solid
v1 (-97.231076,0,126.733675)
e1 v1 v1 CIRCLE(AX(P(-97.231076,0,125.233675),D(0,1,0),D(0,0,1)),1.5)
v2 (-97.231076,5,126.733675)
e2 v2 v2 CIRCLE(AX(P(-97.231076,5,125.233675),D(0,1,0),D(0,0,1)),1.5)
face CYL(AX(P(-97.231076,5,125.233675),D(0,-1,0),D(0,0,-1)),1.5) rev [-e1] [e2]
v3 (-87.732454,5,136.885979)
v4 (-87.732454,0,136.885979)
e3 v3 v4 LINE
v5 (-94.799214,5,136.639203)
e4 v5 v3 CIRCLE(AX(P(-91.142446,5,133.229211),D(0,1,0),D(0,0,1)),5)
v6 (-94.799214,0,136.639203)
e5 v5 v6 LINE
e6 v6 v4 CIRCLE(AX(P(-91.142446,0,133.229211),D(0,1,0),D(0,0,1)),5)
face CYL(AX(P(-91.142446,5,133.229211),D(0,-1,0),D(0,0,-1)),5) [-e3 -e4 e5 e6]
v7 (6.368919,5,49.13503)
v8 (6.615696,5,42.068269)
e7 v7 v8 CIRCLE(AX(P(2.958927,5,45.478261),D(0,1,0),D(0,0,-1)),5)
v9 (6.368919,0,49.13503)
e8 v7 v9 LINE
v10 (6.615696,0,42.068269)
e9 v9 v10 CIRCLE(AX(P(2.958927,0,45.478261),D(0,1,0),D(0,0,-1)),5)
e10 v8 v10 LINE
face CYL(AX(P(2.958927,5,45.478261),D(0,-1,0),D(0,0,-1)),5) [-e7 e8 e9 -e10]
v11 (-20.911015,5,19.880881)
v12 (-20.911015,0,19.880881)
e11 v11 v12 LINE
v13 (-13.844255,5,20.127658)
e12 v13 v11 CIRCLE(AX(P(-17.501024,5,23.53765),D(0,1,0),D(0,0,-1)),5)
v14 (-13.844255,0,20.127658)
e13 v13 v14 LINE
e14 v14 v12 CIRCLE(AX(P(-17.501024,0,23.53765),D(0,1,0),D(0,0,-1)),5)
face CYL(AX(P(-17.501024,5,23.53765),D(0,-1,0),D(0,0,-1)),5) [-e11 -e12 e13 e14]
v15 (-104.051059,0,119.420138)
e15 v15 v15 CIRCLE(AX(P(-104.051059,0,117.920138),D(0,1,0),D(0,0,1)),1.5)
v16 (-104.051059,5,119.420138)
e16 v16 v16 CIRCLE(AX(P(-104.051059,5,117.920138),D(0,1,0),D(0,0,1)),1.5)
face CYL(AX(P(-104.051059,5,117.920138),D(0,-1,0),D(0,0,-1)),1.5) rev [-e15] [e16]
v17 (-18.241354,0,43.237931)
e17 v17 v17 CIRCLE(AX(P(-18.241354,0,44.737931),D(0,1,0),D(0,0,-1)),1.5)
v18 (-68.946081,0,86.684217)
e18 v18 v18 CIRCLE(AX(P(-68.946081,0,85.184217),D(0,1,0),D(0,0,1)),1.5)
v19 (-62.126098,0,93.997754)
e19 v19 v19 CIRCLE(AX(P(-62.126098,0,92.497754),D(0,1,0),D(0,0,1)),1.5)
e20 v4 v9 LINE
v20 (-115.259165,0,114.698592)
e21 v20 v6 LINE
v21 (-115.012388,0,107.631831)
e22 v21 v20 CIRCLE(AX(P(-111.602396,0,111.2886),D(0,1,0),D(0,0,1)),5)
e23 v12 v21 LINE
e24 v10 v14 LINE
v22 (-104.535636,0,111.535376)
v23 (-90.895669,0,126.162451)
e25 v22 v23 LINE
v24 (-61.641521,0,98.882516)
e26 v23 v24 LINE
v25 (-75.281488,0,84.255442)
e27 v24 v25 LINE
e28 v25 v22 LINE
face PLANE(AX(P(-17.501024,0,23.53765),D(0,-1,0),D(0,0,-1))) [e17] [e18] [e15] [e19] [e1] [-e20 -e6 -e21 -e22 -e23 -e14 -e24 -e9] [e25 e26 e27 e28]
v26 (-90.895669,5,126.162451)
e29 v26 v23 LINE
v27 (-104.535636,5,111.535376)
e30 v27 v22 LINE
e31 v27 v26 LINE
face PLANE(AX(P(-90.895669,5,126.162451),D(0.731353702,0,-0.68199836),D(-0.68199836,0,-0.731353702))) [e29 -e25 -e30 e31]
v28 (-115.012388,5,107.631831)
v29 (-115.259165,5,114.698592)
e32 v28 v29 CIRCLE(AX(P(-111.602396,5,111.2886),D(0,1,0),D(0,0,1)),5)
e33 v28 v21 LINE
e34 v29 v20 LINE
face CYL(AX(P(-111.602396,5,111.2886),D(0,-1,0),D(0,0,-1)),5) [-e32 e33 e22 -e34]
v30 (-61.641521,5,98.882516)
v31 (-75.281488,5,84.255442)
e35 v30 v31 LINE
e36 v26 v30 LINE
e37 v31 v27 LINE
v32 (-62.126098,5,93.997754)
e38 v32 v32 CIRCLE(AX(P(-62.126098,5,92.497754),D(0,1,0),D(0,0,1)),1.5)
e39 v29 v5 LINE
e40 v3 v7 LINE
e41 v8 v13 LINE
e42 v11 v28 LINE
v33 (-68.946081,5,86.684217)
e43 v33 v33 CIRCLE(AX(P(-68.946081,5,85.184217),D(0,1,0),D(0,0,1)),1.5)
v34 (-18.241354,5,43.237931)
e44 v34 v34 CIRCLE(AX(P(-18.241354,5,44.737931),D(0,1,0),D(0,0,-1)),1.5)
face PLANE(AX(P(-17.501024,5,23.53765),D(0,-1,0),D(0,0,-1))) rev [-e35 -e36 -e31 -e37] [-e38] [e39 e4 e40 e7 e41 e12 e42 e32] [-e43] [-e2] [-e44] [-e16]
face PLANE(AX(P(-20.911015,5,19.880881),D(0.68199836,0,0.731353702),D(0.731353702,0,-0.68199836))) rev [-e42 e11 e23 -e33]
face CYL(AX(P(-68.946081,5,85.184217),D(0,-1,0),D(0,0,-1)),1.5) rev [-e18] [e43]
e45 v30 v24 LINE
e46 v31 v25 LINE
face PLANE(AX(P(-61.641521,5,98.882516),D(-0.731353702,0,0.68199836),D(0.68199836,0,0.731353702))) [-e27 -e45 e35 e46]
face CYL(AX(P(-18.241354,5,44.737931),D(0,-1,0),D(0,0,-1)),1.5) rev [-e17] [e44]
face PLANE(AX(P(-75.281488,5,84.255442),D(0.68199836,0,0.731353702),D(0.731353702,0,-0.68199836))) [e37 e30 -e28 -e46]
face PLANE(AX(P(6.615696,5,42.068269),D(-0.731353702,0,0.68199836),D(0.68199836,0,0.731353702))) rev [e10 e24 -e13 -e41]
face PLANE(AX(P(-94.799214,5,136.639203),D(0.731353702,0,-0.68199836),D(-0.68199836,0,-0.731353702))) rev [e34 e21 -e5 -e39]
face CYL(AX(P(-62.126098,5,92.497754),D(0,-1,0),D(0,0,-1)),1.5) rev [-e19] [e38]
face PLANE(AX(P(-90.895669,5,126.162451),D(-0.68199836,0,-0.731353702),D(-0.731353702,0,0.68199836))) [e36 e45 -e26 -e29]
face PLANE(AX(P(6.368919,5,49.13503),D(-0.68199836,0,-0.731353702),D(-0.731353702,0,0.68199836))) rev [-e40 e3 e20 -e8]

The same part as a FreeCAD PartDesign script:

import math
import FreeCAD as App
import Part
import Sketcher
from FreeCAD import Vector
Q = App.Units.Quantity

doc = App.newDocument("Part")
params = doc.addObject("Spreadsheet::Sheet", "Params")
for row, (alias, value) in enumerate([
    ("sketch1_diameter", "3 mm"),
    ("sketch1_radius", "5 mm"),
    ("sketch1_length", "30 mm"),
    ("sketch1_length2", "40 mm"),
    ("sketch1_length3", "20 mm"),
    ("pad1_length", "5 mm"),
], start=1):
    params.set(f"A{row}", alias)
    params.set(f"B{row}", "=" + value)
    params.setAlias(f"B{row}", alias)

body = doc.addObject("PartDesign::Body", "Body")

# Sketch on XZ plane
sketch1 = body.newObject("Sketcher::SketchObject", "Sketch")
sketch1.AttachmentSupport = (doc.getObject("XZ_Plane"), [""])
sketch1.MapMode = "FlatFace"
sketch1.addGeometry(Part.LineSegment(Vector(-20.9, 19.9, 0), Vector(-115, 107.6, 0)), False)
sketch1.addGeometry(Part.ArcOfCircle(Part.Circle(Vector(-111.6, 111.3, 0), Vector(0, 0, 1), 5), math.radians(137), math.radians(227)), False)
sketch1.addGeometry(Part.LineSegment(Vector(-115.3, 114.7, 0), Vector(-94.8, 136.6, 0)), False)
sketch1.addGeometry(Part.ArcOfCircle(Part.Circle(Vector(-91.1, 133.2, 0), Vector(0, 0, 1), 5), math.radians(47), math.radians(137)), False)
sketch1.addGeometry(Part.LineSegment(Vector(-87.7, 136.9, 0), Vector(6.4, 49.1, 0)), False)
sketch1.addGeometry(Part.ArcOfCircle(Part.Circle(Vector(3, 45.5, 0), Vector(0, 0, 1), 5), math.radians(-43), math.radians(47)), False)
sketch1.addGeometry(Part.LineSegment(Vector(6.6, 42.1, 0), Vector(-13.8, 20.1, 0)), False)
sketch1.addGeometry(Part.ArcOfCircle(Part.Circle(Vector(-17.5, 23.5, 0), Vector(0, 0, 1), 5), math.radians(-133), math.radians(-43)), False)
sketch1.addGeometry(Part.Circle(Vector(-97.2, 125.2, 0), Vector(0, 0, 1), 1.5), False)
sketch1.addGeometry(Part.Circle(Vector(-104.1, 117.9, 0), Vector(0, 0, 1), 1.5), False)
sketch1.addGeometry(Part.LineSegment(Vector(-61.6, 98.9, 0), Vector(-90.9, 126.2, 0)), False)
sketch1.addGeometry(Part.LineSegment(Vector(-90.9, 126.2, 0), Vector(-104.5, 111.5, 0)), False)
sketch1.addGeometry(Part.LineSegment(Vector(-104.5, 111.5, 0), Vector(-75.3, 84.3, 0)), False)
sketch1.addGeometry(Part.LineSegment(Vector(-75.3, 84.3, 0), Vector(-61.6, 98.9, 0)), False)
sketch1.addGeometry(Part.Circle(Vector(-62.1, 92.5, 0), Vector(0, 0, 1), 1.5), False)
sketch1.addGeometry(Part.Circle(Vector(-68.9, 85.2, 0), Vector(0, 0, 1), 1.5), False)
sketch1.addGeometry(Part.Circle(Vector(-18.2, 44.7, 0), Vector(0, 0, 1), 1.5), False)
sketch1.addConstraint(Sketcher.Constraint("Tangent", 0, 2, 1, 2))
sketch1.addConstraint(Sketcher.Constraint("Tangent", 1, 1, 2, 1))
sketch1.addConstraint(Sketcher.Constraint("Tangent", 2, 2, 3, 2))
sketch1.addConstraint(Sketcher.Constraint("Tangent", 3, 1, 4, 1))
sketch1.addConstraint(Sketcher.Constraint("Tangent", 4, 2, 5, 2))
sketch1.addConstraint(Sketcher.Constraint("Tangent", 5, 1, 6, 1))
sketch1.addConstraint(Sketcher.Constraint("Tangent", 6, 2, 7, 2))
sketch1.addConstraint(Sketcher.Constraint("Tangent", 7, 1, 0, 1))
sketch1.addConstraint(Sketcher.Constraint("Coincident", 10, 2, 11, 1))
sketch1.addConstraint(Sketcher.Constraint("Coincident", 11, 2, 12, 1))
sketch1.addConstraint(Sketcher.Constraint("Coincident", 12, 2, 13, 1))
sketch1.addConstraint(Sketcher.Constraint("Coincident", 13, 2, 10, 1))
sketch1.addConstraint(Sketcher.Constraint("Equal", 1, 3))
sketch1.addConstraint(Sketcher.Constraint("Equal", 3, 5))
sketch1.addConstraint(Sketcher.Constraint("Equal", 5, 7))
sketch1.addConstraint(Sketcher.Constraint("Equal", 8, 9))
sketch1.addConstraint(Sketcher.Constraint("Equal", 9, 14))
sketch1.addConstraint(Sketcher.Constraint("Equal", 14, 15))
sketch1.addConstraint(Sketcher.Constraint("Equal", 15, 16))
sketch1.addConstraint(Sketcher.Constraint("Perpendicular", 0, 2))
sketch1.addConstraint(Sketcher.Constraint("Perpendicular", 2, 4))
sketch1.addConstraint(Sketcher.Constraint("Perpendicular", 4, 6))
sketch1.addConstraint(Sketcher.Constraint("Perpendicular", 6, 10))
sketch1.addConstraint(Sketcher.Constraint("Perpendicular", 10, 11))
sketch1.addConstraint(Sketcher.Constraint("Perpendicular", 11, 12))
sketch1.addConstraint(Sketcher.Constraint("Perpendicular", 12, 13))
sketch1.addConstraint(Sketcher.Constraint("Diameter", 8, Q("3 mm")))
sketch1.addConstraint(Sketcher.Constraint("Radius", 1, Q("5 mm")))
sketch1.addConstraint(Sketcher.Constraint("Angle", 0, Q("137 deg")))
sketch1.addConstraint(Sketcher.Constraint("Distance", 2, Q("30 mm")))
sketch1.addConstraint(Sketcher.Constraint("Distance", 10, Q("40 mm")))
sketch1.addConstraint(Sketcher.Constraint("Distance", 11, Q("20 mm")))
sketch1.addConstraint(Sketcher.Constraint("DistanceX", 15, 3, 4, 2, Q("75.315 mm")))
sketch1.addConstraint(Sketcher.Constraint("DistanceY", -1, 1, 1, 3, Q("111.2886 mm")))
sketch1.addConstraint(Sketcher.Constraint("DistanceX", 1, 3, 14, 3, Q("49.476299 mm")))
sketch1.addConstraint(Sketcher.Constraint("DistanceY", 16, 3, 4, 2, Q("4.397099 mm")))
sketch1.addConstraint(Sketcher.Constraint("DistanceX", 16, 3, 6, 2, Q("4.397099 mm")))
sketch1.addConstraint(Sketcher.Constraint("DistanceY", 11, 2, 8, 3, Q("13.698299 mm")))
sketch1.addConstraint(Sketcher.Constraint("DistanceY", 15, 3, 13, 2, Q("13.698299 mm")))
sketch1.addConstraint(Sketcher.Constraint("Distance", 0, Q("128.667391 mm")))
sketch1.addConstraint(Sketcher.Constraint("DistanceX", 9, 3, -1, 1, Q("104.051059 mm")))
sketch1.addConstraint(Sketcher.Constraint("DistanceY", -1, 1, 9, 3, Q("117.920138 mm")))
sketch1.addConstraint(Sketcher.Constraint("DistanceX", 15, 3, -1, 1, Q("68.946081 mm")))
sketch1.addConstraint(Sketcher.Constraint("DistanceX", 10, 2, -1, 1, Q("90.895669 mm")))
sketch1.addConstraint(Sketcher.Constraint("DistanceY", -1, 1, 10, 2, Q("126.162451 mm")))
sketch1.addConstraint(Sketcher.Constraint("DistanceX", 8, 3, 3, 3, Q("6.08863 mm")))
sketch1.addConstraint(Sketcher.Constraint("DistanceY", 14, 3, 8, 3, Q("32.735921 mm")))
sketch1.setExpression("Constraints[26]", "Params.sketch1_diameter")
sketch1.setExpression("Constraints[27]", "Params.sketch1_radius")
sketch1.setExpression("Constraints[29]", "Params.sketch1_length")
sketch1.setExpression("Constraints[30]", "Params.sketch1_length2")
sketch1.setExpression("Constraints[31]", "Params.sketch1_length3")
pad1 = body.newObject("PartDesign::Pad", "Pad")
pad1.Profile = sketch1
pad1.setExpression("Length", "Params.pad1_length")
pad1.Reversed = True

doc.recompute()
